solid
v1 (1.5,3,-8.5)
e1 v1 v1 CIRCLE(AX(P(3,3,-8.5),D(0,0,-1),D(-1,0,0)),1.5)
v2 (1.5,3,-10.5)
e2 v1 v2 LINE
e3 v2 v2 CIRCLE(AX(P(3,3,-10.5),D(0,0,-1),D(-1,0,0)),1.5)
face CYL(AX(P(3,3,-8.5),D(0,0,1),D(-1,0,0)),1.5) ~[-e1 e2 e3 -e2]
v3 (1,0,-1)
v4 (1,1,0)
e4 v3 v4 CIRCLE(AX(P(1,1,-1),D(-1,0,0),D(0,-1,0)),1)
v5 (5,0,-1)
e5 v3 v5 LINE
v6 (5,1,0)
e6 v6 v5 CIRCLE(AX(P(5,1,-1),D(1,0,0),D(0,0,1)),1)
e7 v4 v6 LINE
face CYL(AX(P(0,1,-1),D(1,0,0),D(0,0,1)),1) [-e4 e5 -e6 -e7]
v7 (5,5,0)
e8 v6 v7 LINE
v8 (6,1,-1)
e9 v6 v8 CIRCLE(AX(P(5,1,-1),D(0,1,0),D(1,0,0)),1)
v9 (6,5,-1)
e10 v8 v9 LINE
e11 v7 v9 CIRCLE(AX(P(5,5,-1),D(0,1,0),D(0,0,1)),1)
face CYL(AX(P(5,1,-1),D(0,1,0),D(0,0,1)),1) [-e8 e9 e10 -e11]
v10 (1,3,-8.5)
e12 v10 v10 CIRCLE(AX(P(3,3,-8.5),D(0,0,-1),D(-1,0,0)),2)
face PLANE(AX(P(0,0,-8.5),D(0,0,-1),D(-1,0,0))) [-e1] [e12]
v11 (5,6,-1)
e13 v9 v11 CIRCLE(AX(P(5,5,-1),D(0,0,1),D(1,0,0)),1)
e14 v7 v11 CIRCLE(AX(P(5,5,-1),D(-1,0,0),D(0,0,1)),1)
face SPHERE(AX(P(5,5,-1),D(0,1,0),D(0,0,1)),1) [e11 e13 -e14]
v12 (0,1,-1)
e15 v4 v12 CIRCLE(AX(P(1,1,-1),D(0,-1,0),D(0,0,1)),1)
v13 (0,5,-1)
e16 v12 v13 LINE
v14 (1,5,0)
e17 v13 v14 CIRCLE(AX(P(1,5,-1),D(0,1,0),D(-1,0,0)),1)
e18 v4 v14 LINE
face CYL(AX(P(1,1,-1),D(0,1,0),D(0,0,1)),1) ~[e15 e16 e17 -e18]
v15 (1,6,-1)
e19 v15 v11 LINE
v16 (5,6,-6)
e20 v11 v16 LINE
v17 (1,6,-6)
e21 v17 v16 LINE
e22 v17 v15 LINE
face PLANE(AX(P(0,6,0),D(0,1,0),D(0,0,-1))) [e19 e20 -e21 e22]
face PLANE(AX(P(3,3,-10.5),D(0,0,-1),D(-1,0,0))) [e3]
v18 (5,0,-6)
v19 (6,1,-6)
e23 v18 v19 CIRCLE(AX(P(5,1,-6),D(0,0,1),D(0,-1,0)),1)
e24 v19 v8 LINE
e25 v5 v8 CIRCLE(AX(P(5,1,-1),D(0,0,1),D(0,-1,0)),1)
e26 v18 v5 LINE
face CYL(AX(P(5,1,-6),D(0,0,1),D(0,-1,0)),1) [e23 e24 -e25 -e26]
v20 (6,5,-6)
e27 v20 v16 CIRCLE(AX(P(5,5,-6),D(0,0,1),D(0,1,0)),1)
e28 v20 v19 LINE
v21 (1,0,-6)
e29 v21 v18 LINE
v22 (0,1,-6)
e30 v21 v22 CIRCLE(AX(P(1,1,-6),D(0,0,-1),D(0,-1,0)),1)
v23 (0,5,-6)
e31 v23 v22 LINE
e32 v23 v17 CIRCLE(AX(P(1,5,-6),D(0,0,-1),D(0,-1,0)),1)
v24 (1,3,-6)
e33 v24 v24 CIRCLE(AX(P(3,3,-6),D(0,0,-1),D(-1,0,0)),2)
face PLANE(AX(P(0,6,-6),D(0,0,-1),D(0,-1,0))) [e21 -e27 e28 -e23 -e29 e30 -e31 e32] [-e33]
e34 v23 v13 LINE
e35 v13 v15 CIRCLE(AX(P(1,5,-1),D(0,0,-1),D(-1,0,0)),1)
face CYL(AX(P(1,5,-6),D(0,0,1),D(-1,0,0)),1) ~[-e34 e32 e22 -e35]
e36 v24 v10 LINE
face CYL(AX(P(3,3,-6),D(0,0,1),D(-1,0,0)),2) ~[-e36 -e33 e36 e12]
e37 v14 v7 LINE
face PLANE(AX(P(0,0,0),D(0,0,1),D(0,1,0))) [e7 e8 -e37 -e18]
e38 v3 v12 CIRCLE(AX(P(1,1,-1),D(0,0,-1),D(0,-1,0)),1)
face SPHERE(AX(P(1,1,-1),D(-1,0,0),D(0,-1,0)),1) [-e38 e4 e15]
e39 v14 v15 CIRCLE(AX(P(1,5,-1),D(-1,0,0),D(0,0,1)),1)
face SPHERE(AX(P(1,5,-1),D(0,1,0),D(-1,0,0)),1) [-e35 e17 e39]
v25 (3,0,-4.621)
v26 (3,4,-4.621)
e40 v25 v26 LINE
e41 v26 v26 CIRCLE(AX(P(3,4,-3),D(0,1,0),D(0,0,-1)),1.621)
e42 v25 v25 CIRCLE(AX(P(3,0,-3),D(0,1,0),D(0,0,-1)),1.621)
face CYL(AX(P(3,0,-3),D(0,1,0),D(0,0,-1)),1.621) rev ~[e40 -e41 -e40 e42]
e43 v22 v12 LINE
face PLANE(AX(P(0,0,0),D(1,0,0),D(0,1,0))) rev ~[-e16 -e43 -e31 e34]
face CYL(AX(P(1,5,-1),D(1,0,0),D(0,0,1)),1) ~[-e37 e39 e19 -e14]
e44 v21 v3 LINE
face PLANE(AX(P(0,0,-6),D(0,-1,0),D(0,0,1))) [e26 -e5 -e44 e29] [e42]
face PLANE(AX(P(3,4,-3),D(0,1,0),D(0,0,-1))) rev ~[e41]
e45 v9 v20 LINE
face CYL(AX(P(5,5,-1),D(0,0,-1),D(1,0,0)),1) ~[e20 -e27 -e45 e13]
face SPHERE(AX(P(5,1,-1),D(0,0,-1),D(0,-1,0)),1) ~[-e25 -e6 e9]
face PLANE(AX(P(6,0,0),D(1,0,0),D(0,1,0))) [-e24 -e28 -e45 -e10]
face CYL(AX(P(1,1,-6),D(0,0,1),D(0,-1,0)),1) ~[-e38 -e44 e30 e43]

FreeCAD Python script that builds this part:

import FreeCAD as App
import Part
import Sketcher


def edges_at(feature, points):
    """Names of the edges that pass closest to the given points."""
    edges = feature.Shape.Edges
    near = lambda p: min(range(len(edges)), key=lambda i: edges[i].distToShape(Part.Vertex(*p))[0])
    return sorted({f"Edge{near(p) + 1}" for p in points})


def add_polygon(sketch, points):
    """Adds a closed chain of lines whose ends are joined by coincident constraints."""
    first, n = sketch.GeometryCount, len(points)
    for a, b in zip(points, points[1:] + points[:1]):
        sketch.addGeometry(Part.LineSegment(App.Vector(*a, 0), App.Vector(*b, 0)), False)
    for i in range(n):
        sketch.addConstraint(Sketcher.Constraint("Coincident", first + i, 2, first + (i + 1) % n, 1))

doc = App.newDocument("Part")
body = doc.addObject("PartDesign::Body", "Body")

sketch1 = body.newObject("Sketcher::SketchObject", "Sketch")
sketch1.AttachmentSupport = (doc.getObject("YZ_Plane"), [""])
sketch1.MapMode = "FlatFace"
add_polygon(sketch1, [(6, 0), (0, 0), (0, -6), (6, -6)])
sketch1.addConstraint(Sketcher.Constraint("Horizontal", 0))
sketch1.addConstraint(Sketcher.Constraint("Vertical", 1))
sketch1.addConstraint(Sketcher.Constraint("Horizontal", 2))
sketch1.addConstraint(Sketcher.Constraint("Vertical", 3))
sketch1.addConstraint(Sketcher.Constraint("Coincident", 0, 2, -1, 1))
sketch1.addConstraint(Sketcher.Constraint("Equal", 2, 1))
sketch1.addConstraint(Sketcher.Constraint("DistanceX", 0, 2, 0, 1, 6.0))
pad1 = body.newObject("PartDesign::Pad", "Pad")
pad1.Profile = sketch1
pad1.Length = 6

sketch2 = body.newObject("Sketcher::SketchObject", "Sketch001")
sketch2.AttachmentSupport = (doc.getObject("XZ_Plane"), [""])
sketch2.MapMode = "FlatFace"
sketch2.addGeometry(Part.Circle(App.Vector(3, -3, 0), App.Vector(0, 0, 1), 1.6), False)
sketch2.addConstraint(Sketcher.Constraint("Diameter", 0, 3.242))
sketch2.addConstraint(Sketcher.Constraint("DistanceX", -1, 1, 0, 3, 3.0))
sketch2.addConstraint(Sketcher.Constraint("DistanceY", 0, 3, -1, 1, 3.0))
doc.recompute()
hole = body.newObject("PartDesign::Hole", "Hole")
hole.Profile = sketch2
hole.ThreadType = "None"
hole.Diameter = 3.242
hole.DepthType = "Dimension"
hole.Depth = 4
hole.DrillPoint = "Flat"

sketch3 = body.newObject("Sketcher::SketchObject", "Sketch002")
sketch3.AttachmentSupport = (doc.getObject("XY_Plane"), [""])
sketch3.MapMode = "FlatFace"
sketch3.AttachmentOffset = App.Placement(App.Vector(0, 0, -6), App.Rotation())
sketch3.addGeometry(Part.Circle(App.Vector(3, 3, 0), App.Vector(0, 0, 1), 2), False)
sketch3.addConstraint(Sketcher.Constraint("Diameter", 0, 4.0))
sketch3.addConstraint(Sketcher.Constraint("DistanceX", -1, 1, 0, 3, 3.0))
sketch3.addConstraint(Sketcher.Constraint("DistanceY", -1, 1, 0, 3, 3.0))
pad2 = body.newObject("PartDesign::Pad", "Pad001")
pad2.Profile = sketch3
pad2.Length = 2.5
pad2.Reversed = True

sketch4 = body.newObject("Sketcher::SketchObject", "Sketch003")
sketch4.AttachmentSupport = (doc.getObject("XY_Plane"), [""])
sketch4.MapMode = "FlatFace"
sketch4.AttachmentOffset = App.Placement(App.Vector(0, 0, -8.5), App.Rotation())
sketch4.addGeometry(Part.Circle(App.Vector(3, 3, 0), App.Vector(0, 0, 1), 1.5), False)
sketch4.addConstraint(Sketcher.Constraint("Diameter", 0, 3.0))
sketch4.addConstraint(Sketcher.Constraint("DistanceX", -1, 1, 0, 3, 3.0))
sketch4.addConstraint(Sketcher.Constraint("DistanceY", -1, 1, 0, 3, 3.0))
pad3 = body.newObject("PartDesign::Pad", "Pad002")
pad3.Profile = sketch4
pad3.Length = 2
pad3.Reversed = True
doc.recompute()

fillet = body.newObject("PartDesign::Fillet", "Fillet")
fillet.Base = (pad3, edges_at(pad3, [(6, 0, -3)]))
fillet.Radius = 1
doc.recompute()

fillet2 = body.newObject("PartDesign::Fillet", "Fillet001")
fillet2.Base = (fillet, edges_at(fillet, [(6, 3.5, 0), (5.707, 0.293, 0), (2.5, 0, 0)]))
fillet2.Radius = 1
doc.recompute()

fillet3 = body.newObject("PartDesign::Fillet", "Fillet002")
fillet3.Base = (fillet2, edges_at(fillet2, [(0, 3.5, 0), (0, 0.293, -0.293), (0, 0, -3.5)]))
fillet3.Radius = 1
doc.recompute()

fillet4 = body.newObject("PartDesign::Fillet", "Fillet003")
fillet4.Base = (fillet3, edges_at(fillet3, [
    (3, 6, 0),
    (5.707, 6, -0.293),
    (6, 6, -3.5),
    (0.293, 6, -0.293),
    (0, 6, -3.5),
]))
fillet4.Radius = 1

doc.recompute()
